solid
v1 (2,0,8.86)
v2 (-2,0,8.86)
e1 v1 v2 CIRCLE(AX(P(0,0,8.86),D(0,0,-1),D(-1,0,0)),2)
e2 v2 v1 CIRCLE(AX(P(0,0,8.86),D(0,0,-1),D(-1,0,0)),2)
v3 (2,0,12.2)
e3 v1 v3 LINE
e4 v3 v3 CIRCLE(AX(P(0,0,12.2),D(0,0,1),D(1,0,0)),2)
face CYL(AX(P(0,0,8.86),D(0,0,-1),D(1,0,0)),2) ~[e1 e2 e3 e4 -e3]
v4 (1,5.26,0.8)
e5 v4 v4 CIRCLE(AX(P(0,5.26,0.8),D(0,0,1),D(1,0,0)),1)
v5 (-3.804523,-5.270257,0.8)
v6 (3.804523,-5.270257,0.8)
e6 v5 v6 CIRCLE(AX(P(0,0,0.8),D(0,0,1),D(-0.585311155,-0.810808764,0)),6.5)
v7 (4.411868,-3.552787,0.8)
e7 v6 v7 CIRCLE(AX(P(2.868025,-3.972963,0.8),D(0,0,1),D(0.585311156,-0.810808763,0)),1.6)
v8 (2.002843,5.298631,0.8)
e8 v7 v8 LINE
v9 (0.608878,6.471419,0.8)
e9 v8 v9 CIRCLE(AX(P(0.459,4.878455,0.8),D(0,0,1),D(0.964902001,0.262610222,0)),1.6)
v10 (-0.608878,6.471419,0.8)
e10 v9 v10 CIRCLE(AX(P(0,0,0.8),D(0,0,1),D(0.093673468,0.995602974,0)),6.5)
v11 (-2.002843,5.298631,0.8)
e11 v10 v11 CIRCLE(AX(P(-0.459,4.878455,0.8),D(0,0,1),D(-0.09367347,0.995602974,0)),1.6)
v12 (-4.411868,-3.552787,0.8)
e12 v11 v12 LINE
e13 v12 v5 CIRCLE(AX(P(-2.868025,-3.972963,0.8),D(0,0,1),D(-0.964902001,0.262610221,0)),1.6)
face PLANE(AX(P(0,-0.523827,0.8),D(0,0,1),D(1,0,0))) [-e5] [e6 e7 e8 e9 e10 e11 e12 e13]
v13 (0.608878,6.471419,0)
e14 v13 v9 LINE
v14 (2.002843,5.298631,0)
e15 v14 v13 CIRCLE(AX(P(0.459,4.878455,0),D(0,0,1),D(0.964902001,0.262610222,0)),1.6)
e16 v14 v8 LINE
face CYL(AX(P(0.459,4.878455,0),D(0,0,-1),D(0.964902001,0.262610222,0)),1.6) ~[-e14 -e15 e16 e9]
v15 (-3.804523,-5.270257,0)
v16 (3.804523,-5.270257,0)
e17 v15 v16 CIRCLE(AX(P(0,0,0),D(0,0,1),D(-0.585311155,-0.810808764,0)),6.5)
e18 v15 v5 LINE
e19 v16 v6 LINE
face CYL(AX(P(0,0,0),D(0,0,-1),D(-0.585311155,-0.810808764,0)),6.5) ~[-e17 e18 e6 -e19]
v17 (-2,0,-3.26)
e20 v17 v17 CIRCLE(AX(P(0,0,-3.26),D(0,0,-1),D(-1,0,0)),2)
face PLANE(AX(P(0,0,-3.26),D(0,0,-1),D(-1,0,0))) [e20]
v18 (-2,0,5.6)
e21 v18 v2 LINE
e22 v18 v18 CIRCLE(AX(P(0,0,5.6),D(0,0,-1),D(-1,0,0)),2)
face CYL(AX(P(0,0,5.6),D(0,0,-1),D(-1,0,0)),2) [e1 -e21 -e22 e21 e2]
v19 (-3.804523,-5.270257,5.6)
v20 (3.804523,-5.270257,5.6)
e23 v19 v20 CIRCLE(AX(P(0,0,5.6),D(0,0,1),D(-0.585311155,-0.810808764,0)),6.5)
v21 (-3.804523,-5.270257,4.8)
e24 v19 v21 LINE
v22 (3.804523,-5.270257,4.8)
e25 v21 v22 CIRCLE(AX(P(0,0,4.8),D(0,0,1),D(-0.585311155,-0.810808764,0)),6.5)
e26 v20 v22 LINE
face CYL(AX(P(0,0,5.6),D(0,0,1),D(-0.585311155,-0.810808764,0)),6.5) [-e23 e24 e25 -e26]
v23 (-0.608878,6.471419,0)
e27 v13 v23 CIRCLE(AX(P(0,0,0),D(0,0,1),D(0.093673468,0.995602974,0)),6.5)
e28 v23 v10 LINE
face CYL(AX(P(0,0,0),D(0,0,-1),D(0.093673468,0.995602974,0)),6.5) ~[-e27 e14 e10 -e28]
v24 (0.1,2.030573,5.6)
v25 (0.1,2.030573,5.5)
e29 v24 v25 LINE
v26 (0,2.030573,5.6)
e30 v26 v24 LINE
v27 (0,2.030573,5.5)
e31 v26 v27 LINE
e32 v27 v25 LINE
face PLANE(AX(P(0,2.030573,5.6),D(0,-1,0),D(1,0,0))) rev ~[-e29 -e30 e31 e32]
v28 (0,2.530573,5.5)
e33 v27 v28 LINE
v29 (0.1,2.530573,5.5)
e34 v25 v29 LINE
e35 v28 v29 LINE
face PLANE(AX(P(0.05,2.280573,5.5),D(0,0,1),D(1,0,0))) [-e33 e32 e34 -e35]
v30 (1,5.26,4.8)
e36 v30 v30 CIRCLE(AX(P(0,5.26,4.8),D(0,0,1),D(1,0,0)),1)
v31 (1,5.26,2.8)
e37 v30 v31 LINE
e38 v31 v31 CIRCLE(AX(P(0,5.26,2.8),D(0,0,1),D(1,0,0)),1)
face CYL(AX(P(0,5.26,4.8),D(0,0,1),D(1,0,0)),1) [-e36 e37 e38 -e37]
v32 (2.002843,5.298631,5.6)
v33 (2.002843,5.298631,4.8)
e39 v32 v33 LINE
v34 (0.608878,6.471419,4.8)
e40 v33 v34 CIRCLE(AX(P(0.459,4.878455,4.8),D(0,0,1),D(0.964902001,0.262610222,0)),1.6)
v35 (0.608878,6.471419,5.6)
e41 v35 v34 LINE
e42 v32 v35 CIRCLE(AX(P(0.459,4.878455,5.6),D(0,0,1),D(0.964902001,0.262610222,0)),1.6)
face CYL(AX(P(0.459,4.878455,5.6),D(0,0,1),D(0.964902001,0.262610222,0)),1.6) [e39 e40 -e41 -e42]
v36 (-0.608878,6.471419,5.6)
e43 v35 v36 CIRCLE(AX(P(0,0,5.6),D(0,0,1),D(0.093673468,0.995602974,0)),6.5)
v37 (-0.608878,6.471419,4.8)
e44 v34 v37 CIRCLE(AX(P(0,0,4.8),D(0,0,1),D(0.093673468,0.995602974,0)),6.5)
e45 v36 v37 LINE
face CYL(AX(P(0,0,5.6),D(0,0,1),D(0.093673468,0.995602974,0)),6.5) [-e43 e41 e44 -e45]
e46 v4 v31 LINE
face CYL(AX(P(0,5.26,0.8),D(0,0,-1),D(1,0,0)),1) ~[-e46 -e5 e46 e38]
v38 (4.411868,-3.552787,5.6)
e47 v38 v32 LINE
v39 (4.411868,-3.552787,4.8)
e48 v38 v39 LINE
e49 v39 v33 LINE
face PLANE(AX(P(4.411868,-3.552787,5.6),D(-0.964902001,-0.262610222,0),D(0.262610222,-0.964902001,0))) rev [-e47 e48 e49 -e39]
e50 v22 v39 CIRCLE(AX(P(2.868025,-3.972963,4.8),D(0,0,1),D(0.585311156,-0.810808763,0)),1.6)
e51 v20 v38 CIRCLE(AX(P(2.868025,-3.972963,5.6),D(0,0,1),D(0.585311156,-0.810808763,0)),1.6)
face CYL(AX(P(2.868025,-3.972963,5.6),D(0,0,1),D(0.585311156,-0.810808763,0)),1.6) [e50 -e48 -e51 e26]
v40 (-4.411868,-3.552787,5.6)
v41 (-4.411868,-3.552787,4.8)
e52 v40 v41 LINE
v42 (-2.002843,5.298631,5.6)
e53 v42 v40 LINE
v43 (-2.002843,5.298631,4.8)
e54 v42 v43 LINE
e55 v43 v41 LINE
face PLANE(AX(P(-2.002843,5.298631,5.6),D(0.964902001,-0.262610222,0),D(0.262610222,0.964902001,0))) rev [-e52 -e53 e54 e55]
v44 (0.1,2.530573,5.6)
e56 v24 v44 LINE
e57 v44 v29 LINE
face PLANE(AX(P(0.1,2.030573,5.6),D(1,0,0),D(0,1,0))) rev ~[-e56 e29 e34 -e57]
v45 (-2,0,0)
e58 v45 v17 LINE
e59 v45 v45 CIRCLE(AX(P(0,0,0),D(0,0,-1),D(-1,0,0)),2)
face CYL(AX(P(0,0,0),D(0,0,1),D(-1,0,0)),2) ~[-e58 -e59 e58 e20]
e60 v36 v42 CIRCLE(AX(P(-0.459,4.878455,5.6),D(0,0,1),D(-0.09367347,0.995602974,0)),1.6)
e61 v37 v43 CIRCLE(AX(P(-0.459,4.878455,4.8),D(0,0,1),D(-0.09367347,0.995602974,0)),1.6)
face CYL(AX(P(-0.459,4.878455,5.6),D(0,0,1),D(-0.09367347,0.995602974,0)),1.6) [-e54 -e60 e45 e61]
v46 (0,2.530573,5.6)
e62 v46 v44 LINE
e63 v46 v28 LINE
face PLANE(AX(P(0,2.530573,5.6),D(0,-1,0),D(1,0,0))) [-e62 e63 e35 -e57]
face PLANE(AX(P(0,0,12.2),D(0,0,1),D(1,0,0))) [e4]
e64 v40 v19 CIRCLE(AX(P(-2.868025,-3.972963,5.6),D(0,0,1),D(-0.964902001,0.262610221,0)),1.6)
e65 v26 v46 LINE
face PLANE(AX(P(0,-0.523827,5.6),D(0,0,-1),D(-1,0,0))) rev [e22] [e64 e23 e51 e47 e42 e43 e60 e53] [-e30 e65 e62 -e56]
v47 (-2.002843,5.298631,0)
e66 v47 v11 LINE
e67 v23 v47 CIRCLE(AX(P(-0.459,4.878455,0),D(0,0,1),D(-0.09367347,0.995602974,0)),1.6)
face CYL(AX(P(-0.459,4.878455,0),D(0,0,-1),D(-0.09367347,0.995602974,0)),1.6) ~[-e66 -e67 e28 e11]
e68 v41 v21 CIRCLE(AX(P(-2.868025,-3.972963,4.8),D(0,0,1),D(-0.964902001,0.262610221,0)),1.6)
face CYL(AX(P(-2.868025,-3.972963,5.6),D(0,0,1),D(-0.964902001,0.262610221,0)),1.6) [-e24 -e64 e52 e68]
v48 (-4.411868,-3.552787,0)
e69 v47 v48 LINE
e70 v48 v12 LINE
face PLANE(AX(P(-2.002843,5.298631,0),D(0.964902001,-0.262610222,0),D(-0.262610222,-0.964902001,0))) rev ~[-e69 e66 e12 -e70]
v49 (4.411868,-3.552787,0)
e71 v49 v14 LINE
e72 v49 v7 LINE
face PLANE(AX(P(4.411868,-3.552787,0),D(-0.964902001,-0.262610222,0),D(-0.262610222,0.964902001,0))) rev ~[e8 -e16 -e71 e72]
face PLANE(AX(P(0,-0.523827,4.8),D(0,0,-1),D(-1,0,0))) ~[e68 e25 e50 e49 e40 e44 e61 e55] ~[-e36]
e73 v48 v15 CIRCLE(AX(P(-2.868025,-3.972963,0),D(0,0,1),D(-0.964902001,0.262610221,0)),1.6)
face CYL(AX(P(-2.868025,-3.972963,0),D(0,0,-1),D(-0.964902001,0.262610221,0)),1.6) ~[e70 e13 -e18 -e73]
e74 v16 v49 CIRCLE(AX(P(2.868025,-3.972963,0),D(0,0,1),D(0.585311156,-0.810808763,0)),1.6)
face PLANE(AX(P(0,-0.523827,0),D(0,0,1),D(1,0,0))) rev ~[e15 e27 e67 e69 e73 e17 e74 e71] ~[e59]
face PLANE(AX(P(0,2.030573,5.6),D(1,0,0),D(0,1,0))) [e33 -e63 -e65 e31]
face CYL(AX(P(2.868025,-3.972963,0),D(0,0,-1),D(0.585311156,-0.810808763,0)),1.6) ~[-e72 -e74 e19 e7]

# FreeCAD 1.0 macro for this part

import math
import FreeCAD as App
import Part
import Sketcher

V = App.Vector
Q = App.Units.Quantity

doc = App.newDocument("Part")
body = doc.addObject("PartDesign::Body", "Body")

# Sketch on XY plane
sketch1 = body.newObject("Sketcher::SketchObject", "Sketch")
sketch1.AttachmentSupport = (doc.getObject("XY_Plane"), [""])
sketch1.MapMode = "FlatFace"
sketch1.addGeometry([
    Part.LineSegment(V(-2.002843, 5.298631, 0), V(-4.411868, -3.552787, 0)),  # 0
    Part.ArcOfCircle(Part.Circle(V(-2.868025, -3.972963, 0), V(0, 0, 1), 1.6), math.radians(164.775), math.radians(234.175025)),  # 1
    Part.ArcOfCircle(Part.Circle(V(0, 0, 0), V(0, 0, 1), 6.5), math.radians(-125.824975), math.radians(-54.175025)),  # 2
    Part.ArcOfCircle(Part.Circle(V(2.868025, -3.972963, 0), V(0, 0, 1), 1.6), math.radians(-54.175025), math.radians(15.225)),  # 3
    Part.LineSegment(V(4.411868, -3.552787, 0), V(2.002843, 5.298631, 0)),  # 4
    Part.ArcOfCircle(Part.Circle(V(0.459, 4.878455, 0), V(0, 0, 1), 1.6), math.radians(15.225), math.radians(84.625025)),  # 5
    Part.ArcOfCircle(Part.Circle(V(0, 0, 0), V(0, 0, 1), 6.5), math.radians(84.625025), math.radians(95.374975)),  # 6
    Part.ArcOfCircle(Part.Circle(V(-0.459, 4.878455, 0), V(0, 0, 1), 1.6), math.radians(95.374975), math.radians(164.775)),  # 7
], False)
sketch1.addConstraint([
    Sketcher.Constraint("Tangent", 0, 2, 1, 1),
    Sketcher.Constraint("Tangent", 1, 2, 2, 1),
    Sketcher.Constraint("Tangent", 2, 2, 3, 1),
    Sketcher.Constraint("Tangent", 3, 2, 4, 1),
    Sketcher.Constraint("Tangent", 4, 2, 5, 1),
    Sketcher.Constraint("Tangent", 5, 2, 6, 1),
    Sketcher.Constraint("Tangent", 6, 2, 7, 1),
    Sketcher.Constraint("Tangent", 7, 2, 0, 1),
    Sketcher.Constraint("Coincident", 2, 3, -1, 1),
    Sketcher.Constraint("Coincident", 6, 3, -1, 1),
    Sketcher.Constraint("Equal", 1, 3),
    Sketcher.Constraint("Equal", 3, 5),
    Sketcher.Constraint("Equal", 2, 6),
    Sketcher.Constraint("Equal", 5, 7),
    Sketcher.Constraint("Symmetric", 0, 2, 3, 2, -2),
    Sketcher.Constraint("Radius", 1, Q("1.6 mm")),
    Sketcher.Constraint("Radius", 2, Q("6.5 mm")),
    Sketcher.Constraint("DistanceX", -1, 1, 5, 3, Q("0.459 mm")),
    Sketcher.Constraint("DistanceY", -1, 1, 4, 2, Q("5.298631 mm")),
])
pad1 = body.newObject("PartDesign::Pad", "Pad")
pad1.Profile = sketch1
pad1.Length = 0.8

# Sketch on XY plane
sketch2 = body.newObject("Sketcher::SketchObject", "Sketch001")
sketch2.AttachmentSupport = (doc.getObject("XY_Plane"), [""])
sketch2.MapMode = "FlatFace"
sketch2.AttachmentOffset = App.Placement(V(0, 0, 0.8), App.Rotation())
sketch2.addGeometry(Part.Circle(V(0, 5.26, 0), V(0, 0, 1), 1), False)
sketch2.addConstraint([
    Sketcher.Constraint("PointOnObject", 0, 3, -2),
    Sketcher.Constraint("Diameter", 0, Q("2 mm")),
    Sketcher.Constraint("DistanceY", -1, 1, 0, 3, Q("5.26 mm")),
])
pad2 = body.newObject("PartDesign::Pad", "Pad001")
pad2.Profile = sketch2
pad2.Length = 2

# Sketch on XY plane
sketch3 = body.newObject("Sketcher::SketchObject", "Sketch002")
sketch3.AttachmentSupport = (doc.getObject("XY_Plane"), [""])
sketch3.MapMode = "FlatFace"
sketch3.addGeometry(Part.Circle(V(0, 0, 0), V(0, 0, 1), 2), False)
sketch3.addConstraint([
    Sketcher.Constraint("Coincident", 0, 3, -1, 1),
    Sketcher.Constraint("Diameter", 0, Q("4 mm")),
])
pad3 = body.newObject("PartDesign::Pad", "Pad002")
pad3.Profile = sketch3
pad3.Length = 3.26
pad3.Reversed = True
body2 = doc.addObject("PartDesign::Body", "Body001")
doc.recompute()

body2.BaseFeature = body
doc.recompute()

mirroring = doc.addObject("Part::Mirroring", "Mirroring")
mirroring.Source = body
mirroring.Base = V(0, 5.26, 2.8)
mirroring.Normal = V(0, 0, 1)
body3 = doc.addObject("PartDesign::Body", "Body002")
body3.BaseFeature = mirroring
boolean = body2.newObject("PartDesign::Boolean", "Boolean")
boolean.Type = "Fuse"
boolean.addObjects([body3])
doc.recompute()

# Sketch on XY plane
sketch4 = body2.newObject("Sketcher::SketchObject", "Sketch003")
sketch4.AttachmentSupport = (doc.getObject("XY_Plane001"), [""])
sketch4.MapMode = "FlatFace"
sketch4.AttachmentOffset = App.Placement(V(0, 0, 8.86), App.Rotation())
sketch4.addGeometry(Part.Circle(V(0, 0, 0), V(0, 0, 1), 2), False)
sketch4.addConstraint([
    Sketcher.Constraint("Coincident", 0, 3, -1, 1),
    Sketcher.Constraint("Diameter", 0, Q("4 mm")),
])
pad4 = body2.newObject("PartDesign::Pad", "Pad003")
pad4.Profile = sketch4
pad4.Length = 3.34

# Sketch on XY plane
sketch5 = body2.newObject("Sketcher::SketchObject", "Sketch004")
sketch5.AttachmentSupport = (doc.getObject("XY_Plane001"), [""])
sketch5.MapMode = "FlatFace"
sketch5.AttachmentOffset = App.Placement(V(0, 0, 5.6), App.Rotation())
sketch5.addGeometry([
    Part.LineSegment(V(0, 2.530573, 0), V(0, 2.030573, 0)),
    Part.LineSegment(V(0, 2.030573, 0), V(0.1, 2.030573, 0)),
    Part.LineSegment(V(0.1, 2.030573, 0), V(0.1, 2.530573, 0)),
    Part.LineSegment(V(0.1, 2.530573, 0), V(0, 2.530573, 0)),
], False)
sketch5.addConstraint([
    Sketcher.Constraint("Coincident", 0, 2, 1, 1),
    Sketcher.Constraint("Coincident", 1, 2, 2, 1),
    Sketcher.Constraint("Coincident", 2, 2, 3, 1),
    Sketcher.Constraint("Coincident", 3, 2, 0, 1),
    Sketcher.Constraint("Vertical", 0),
    Sketcher.Constraint("Horizontal", 1),
    Sketcher.Constraint("Vertical", 2),
    Sketcher.Constraint("Horizontal", 3),
    Sketcher.Constraint("PointOnObject", 0, 2, -2),
    Sketcher.Constraint("DistanceX", 1, 1, 1, 2, Q("0.1 mm")),
    Sketcher.Constraint("DistanceY", 0, 2, 0, 1, Q("0.5 mm")),
    Sketcher.Constraint("DistanceY", -1, 1, 0, 2, Q("2.030573 mm")),
])
pocket1 = body2.newObject("PartDesign::Pocket", "Pocket")
pocket1.Profile = sketch5
pocket1.Length = 0.1
mirroring.Visibility = False

doc.recompute()
